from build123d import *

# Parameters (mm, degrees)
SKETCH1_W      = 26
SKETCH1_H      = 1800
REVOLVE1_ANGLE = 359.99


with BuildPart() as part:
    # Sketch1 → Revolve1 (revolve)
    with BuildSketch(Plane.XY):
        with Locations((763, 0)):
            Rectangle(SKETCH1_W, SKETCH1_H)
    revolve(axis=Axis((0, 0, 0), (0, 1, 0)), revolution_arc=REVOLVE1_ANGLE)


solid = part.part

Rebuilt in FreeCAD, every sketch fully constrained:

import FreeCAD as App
import Part
import Sketcher
from FreeCAD import Vector

doc = App.newDocument("Part")
body = doc.addObject("PartDesign::Body", "Body")

sketch1 = doc.addObject("Sketcher::SketchObject", "Sketch")
body.addObject(sketch1)
sketch1.AttachmentSupport = (doc.XY_Plane, [""])
sketch1.MapMode = "FlatFace"
sketch1.addGeometry(Part.LineSegment(Vector(750, 900, 0), Vector(750, -900, 0)), False)
sketch1.addGeometry(Part.LineSegment(Vector(750, -900, 0), Vector(776, -900, 0)), False)
sketch1.addGeometry(Part.LineSegment(Vector(776, -900, 0), Vector(776, 900, 0)), False)
sketch1.addGeometry(Part.LineSegment(Vector(776, 900, 0), Vector(750, 900, 0)), False)
sketch1.addConstraint(Sketcher.Constraint("Coincident", 0, 2, 1, 1))
sketch1.addConstraint(Sketcher.Constraint("Coincident", 1, 2, 2, 1))
sketch1.addConstraint(Sketcher.Constraint("Coincident", 2, 2, 3, 1))
sketch1.addConstraint(Sketcher.Constraint("Coincident", 3, 2, 0, 1))
sketch1.addConstraint(Sketcher.Constraint("Vertical", 0))
sketch1.addConstraint(Sketcher.Constraint("Horizontal", 1))
sketch1.addConstraint(Sketcher.Constraint("Vertical", 2))
sketch1.addConstraint(Sketcher.Constraint("Horizontal", 3))
sketch1.addConstraint(Sketcher.Constraint("DistanceX", 1, 1, 1, 2, 26.0))
sketch1.addConstraint(Sketcher.Constraint("DistanceY", 0, 2, 0, 1, 1800.0))
sketch1.addConstraint(Sketcher.Constraint("DistanceX", -1, 1, 0, 2, 750.0))
sketch1.addConstraint(Sketcher.Constraint("DistanceY", 0, 2, -1, 1, 900.0))
revolution = doc.addObject("PartDesign::Revolution", "Revolution")
body.addObject(revolution)
revolution.Profile = sketch1
revolution.ReferenceAxis = (sketch1, ["V_Axis"])
revolution.Angle = 359.99

doc.recompute()
